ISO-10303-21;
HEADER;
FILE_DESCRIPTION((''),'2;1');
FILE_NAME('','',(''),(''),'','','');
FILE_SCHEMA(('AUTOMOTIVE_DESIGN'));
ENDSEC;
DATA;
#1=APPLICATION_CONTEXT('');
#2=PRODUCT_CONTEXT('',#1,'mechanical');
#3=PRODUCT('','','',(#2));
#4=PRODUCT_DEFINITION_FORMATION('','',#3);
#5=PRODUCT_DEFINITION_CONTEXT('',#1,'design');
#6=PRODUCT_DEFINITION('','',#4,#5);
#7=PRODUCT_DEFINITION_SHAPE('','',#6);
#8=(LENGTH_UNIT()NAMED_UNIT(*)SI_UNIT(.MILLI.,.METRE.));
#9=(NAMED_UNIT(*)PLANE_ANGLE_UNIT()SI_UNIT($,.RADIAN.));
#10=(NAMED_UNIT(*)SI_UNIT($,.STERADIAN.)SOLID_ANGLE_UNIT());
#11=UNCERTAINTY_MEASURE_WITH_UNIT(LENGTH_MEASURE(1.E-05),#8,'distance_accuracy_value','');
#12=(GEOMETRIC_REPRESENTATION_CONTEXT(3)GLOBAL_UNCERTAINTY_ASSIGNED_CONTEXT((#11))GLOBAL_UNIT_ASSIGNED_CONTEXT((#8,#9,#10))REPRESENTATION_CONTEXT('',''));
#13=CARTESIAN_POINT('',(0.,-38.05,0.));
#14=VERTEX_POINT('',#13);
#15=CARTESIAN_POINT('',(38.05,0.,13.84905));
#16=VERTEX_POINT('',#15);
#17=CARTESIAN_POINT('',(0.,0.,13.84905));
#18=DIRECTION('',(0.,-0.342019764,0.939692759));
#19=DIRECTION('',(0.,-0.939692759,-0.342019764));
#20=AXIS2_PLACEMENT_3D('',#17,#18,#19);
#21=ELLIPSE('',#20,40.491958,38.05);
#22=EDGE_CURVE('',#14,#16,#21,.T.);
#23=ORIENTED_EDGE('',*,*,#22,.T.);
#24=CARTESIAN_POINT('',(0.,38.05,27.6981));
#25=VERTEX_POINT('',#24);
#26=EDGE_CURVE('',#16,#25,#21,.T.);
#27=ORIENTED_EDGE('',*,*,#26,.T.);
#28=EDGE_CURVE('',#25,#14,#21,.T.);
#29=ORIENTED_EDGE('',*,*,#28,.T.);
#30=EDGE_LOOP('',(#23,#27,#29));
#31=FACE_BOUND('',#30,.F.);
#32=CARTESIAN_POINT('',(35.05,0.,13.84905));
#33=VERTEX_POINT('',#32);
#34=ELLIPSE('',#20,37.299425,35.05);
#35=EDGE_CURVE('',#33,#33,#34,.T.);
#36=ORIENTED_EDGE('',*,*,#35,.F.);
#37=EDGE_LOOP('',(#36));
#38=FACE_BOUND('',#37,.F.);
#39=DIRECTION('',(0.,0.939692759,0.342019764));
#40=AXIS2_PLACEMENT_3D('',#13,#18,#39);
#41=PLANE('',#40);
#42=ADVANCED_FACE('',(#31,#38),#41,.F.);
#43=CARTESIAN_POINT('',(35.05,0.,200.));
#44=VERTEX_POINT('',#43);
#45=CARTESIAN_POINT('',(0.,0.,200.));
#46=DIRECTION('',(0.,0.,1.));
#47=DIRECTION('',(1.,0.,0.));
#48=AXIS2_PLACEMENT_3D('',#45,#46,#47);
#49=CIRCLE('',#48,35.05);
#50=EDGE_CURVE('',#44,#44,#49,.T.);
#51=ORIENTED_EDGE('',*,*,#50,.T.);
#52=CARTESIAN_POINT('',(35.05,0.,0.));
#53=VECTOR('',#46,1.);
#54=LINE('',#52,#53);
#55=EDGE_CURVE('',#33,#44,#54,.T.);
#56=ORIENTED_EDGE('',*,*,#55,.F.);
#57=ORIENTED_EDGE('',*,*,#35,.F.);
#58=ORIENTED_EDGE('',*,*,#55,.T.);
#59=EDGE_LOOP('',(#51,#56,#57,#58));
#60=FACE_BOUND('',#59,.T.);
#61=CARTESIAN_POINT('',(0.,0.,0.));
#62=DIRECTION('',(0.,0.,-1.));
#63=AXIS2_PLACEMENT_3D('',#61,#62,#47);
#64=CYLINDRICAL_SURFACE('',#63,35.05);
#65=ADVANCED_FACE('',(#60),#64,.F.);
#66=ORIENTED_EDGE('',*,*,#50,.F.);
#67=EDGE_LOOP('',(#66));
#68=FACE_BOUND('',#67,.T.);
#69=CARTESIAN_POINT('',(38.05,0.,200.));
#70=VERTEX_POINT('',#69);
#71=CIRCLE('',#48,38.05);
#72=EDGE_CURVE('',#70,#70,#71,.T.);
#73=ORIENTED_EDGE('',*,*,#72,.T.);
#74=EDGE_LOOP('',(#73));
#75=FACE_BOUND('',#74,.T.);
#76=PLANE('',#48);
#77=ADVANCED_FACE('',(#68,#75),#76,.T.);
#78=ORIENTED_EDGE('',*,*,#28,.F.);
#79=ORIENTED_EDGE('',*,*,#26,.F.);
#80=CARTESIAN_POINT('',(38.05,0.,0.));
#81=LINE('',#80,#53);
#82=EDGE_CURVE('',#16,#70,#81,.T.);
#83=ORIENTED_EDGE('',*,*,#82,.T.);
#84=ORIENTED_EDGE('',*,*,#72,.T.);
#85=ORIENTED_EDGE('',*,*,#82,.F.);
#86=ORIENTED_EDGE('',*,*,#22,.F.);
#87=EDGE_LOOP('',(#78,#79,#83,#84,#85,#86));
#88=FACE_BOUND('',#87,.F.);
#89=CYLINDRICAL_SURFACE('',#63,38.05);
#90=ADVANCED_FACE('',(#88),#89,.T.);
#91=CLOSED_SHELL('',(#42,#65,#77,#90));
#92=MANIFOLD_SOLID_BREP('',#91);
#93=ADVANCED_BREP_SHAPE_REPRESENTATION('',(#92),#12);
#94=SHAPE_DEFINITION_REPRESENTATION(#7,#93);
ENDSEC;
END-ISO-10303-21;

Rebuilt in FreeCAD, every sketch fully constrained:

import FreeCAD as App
import Part
import Sketcher

V = App.Vector
Q = App.Units.Quantity


def add_polygon(sketch, points):
    """Adds a closed chain of lines whose ends are joined by coincident constraints."""
    first, n = sketch.GeometryCount, len(points)
    for a, b in zip(points, points[1:] + points[:1]):
        sketch.addGeometry(Part.LineSegment(App.Vector(*a, 0), App.Vector(*b, 0)), False)
    for i in range(n):
        sketch.addConstraint(Sketcher.Constraint("Coincident", first + i, 2, first + (i + 1) % n, 1))

doc = App.newDocument("Part")
body = doc.addObject("PartDesign::Body", "Body")

sketch1 = doc.addObject("Sketcher::SketchObject", "Sketch")
body.addObject(sketch1)
sketch1.AttachmentSupport = (doc.XY_Plane, [""])
sketch1.MapMode = "FlatFace"
sketch1.addGeometry(Part.Circle(V(0, 0, 0), V(0, 0, 1), 38), False)
sketch1.addGeometry(Part.Circle(V(0, 0, 0), V(0, 0, 1), 35), False)
sketch1.addConstraint(Sketcher.Constraint("Coincident", 0, 3, -1, 1))
sketch1.addConstraint(Sketcher.Constraint("Coincident", 1, 3, -1, 1))
sketch1.addConstraint(Sketcher.Constraint("Diameter", 0, Q("76.1 mm")))
sketch1.addConstraint(Sketcher.Constraint("Diameter", 1, Q("70.1 mm")))
pad1 = doc.addObject("PartDesign::Pad", "Pad")
body.addObject(pad1)
pad1.Profile = sketch1
pad1.Length = 200

sketch2 = doc.addObject("Sketcher::SketchObject", "Sketch001")
body.addObject(sketch2)
sketch2.AttachmentSupport = (doc.YZ_Plane, [""])
sketch2.MapMode = "FlatFace"
add_polygon(sketch2, [(-38, 0), (38, 0), (38, 28)])
sketch2.addConstraint(Sketcher.Constraint("Horizontal", 0))
sketch2.addConstraint(Sketcher.Constraint("Vertical", 1))
sketch2.addConstraint(Sketcher.Constraint("Symmetric", 0, 2, 2, 2, -1, 1))
sketch2.addConstraint(Sketcher.Constraint("Angle", 2, Q("-160 deg")))
sketch2.addConstraint(Sketcher.Constraint("DistanceX", 0, 1, 0, 2, Q("76.1 mm")))
pocket1 = doc.addObject("PartDesign::Pocket", "Pocket")
body.addObject(pocket1)
pocket1.Profile = sketch2
pocket1.Length = 300
pocket1.Midplane = True

doc.recompute()
